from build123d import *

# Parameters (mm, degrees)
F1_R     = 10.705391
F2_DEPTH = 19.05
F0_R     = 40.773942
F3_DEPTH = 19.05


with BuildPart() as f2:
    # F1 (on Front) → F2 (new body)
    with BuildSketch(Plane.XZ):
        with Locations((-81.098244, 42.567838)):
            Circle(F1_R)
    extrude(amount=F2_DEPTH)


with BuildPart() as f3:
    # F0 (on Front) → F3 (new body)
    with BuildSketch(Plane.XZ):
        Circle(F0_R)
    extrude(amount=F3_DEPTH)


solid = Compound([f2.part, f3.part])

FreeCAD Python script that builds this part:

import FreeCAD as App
import Part
import Sketcher
Q = App.Units.Quantity

doc = App.newDocument("Part")
body = doc.addObject("PartDesign::Body", "Body")

# Sketch on XZ plane
sketch1 = body.newObject("Sketcher::SketchObject", "Sketch")
sketch1.AttachmentSupport = (doc.getObject("XZ_Plane"), [""])
sketch1.MapMode = "FlatFace"
sketch1.addGeometry(Part.Circle(App.Vector(-81, 43, 0), App.Vector(0, 0, 1), 11), False)
sketch1.addConstraint([
    Sketcher.Constraint("Diameter", 0, 21.410782),
    Sketcher.Constraint("DistanceY", -1, 1, 0, 3, 42.567838),
    Sketcher.Constraint("DistanceX", 0, 3, -1, 1, 81.098244),
])
pad1 = body.newObject("PartDesign::Pad", "Pad")
pad1.Profile = sketch1
pad1.Length = Q("0.75 in")
body2 = doc.addObject("PartDesign::Body", "Body001")

# Sketch on XZ plane
sketch2 = body2.newObject("Sketcher::SketchObject", "Sketch001")
sketch2.AttachmentSupport = (doc.getObject("XZ_Plane001"), [""])
sketch2.MapMode = "FlatFace"
sketch2.addGeometry(Part.Circle(App.Vector(0, 0, 0), App.Vector(0, 0, 1), 41), False)
sketch2.addConstraint([
    Sketcher.Constraint("Coincident", 0, 3, -1, 1),
    Sketcher.Constraint("Diameter", 0, 81.547884),
])
pad2 = body2.newObject("PartDesign::Pad", "Pad001")
pad2.Profile = sketch2
pad2.Length = Q("0.75 in")

doc.recompute()
